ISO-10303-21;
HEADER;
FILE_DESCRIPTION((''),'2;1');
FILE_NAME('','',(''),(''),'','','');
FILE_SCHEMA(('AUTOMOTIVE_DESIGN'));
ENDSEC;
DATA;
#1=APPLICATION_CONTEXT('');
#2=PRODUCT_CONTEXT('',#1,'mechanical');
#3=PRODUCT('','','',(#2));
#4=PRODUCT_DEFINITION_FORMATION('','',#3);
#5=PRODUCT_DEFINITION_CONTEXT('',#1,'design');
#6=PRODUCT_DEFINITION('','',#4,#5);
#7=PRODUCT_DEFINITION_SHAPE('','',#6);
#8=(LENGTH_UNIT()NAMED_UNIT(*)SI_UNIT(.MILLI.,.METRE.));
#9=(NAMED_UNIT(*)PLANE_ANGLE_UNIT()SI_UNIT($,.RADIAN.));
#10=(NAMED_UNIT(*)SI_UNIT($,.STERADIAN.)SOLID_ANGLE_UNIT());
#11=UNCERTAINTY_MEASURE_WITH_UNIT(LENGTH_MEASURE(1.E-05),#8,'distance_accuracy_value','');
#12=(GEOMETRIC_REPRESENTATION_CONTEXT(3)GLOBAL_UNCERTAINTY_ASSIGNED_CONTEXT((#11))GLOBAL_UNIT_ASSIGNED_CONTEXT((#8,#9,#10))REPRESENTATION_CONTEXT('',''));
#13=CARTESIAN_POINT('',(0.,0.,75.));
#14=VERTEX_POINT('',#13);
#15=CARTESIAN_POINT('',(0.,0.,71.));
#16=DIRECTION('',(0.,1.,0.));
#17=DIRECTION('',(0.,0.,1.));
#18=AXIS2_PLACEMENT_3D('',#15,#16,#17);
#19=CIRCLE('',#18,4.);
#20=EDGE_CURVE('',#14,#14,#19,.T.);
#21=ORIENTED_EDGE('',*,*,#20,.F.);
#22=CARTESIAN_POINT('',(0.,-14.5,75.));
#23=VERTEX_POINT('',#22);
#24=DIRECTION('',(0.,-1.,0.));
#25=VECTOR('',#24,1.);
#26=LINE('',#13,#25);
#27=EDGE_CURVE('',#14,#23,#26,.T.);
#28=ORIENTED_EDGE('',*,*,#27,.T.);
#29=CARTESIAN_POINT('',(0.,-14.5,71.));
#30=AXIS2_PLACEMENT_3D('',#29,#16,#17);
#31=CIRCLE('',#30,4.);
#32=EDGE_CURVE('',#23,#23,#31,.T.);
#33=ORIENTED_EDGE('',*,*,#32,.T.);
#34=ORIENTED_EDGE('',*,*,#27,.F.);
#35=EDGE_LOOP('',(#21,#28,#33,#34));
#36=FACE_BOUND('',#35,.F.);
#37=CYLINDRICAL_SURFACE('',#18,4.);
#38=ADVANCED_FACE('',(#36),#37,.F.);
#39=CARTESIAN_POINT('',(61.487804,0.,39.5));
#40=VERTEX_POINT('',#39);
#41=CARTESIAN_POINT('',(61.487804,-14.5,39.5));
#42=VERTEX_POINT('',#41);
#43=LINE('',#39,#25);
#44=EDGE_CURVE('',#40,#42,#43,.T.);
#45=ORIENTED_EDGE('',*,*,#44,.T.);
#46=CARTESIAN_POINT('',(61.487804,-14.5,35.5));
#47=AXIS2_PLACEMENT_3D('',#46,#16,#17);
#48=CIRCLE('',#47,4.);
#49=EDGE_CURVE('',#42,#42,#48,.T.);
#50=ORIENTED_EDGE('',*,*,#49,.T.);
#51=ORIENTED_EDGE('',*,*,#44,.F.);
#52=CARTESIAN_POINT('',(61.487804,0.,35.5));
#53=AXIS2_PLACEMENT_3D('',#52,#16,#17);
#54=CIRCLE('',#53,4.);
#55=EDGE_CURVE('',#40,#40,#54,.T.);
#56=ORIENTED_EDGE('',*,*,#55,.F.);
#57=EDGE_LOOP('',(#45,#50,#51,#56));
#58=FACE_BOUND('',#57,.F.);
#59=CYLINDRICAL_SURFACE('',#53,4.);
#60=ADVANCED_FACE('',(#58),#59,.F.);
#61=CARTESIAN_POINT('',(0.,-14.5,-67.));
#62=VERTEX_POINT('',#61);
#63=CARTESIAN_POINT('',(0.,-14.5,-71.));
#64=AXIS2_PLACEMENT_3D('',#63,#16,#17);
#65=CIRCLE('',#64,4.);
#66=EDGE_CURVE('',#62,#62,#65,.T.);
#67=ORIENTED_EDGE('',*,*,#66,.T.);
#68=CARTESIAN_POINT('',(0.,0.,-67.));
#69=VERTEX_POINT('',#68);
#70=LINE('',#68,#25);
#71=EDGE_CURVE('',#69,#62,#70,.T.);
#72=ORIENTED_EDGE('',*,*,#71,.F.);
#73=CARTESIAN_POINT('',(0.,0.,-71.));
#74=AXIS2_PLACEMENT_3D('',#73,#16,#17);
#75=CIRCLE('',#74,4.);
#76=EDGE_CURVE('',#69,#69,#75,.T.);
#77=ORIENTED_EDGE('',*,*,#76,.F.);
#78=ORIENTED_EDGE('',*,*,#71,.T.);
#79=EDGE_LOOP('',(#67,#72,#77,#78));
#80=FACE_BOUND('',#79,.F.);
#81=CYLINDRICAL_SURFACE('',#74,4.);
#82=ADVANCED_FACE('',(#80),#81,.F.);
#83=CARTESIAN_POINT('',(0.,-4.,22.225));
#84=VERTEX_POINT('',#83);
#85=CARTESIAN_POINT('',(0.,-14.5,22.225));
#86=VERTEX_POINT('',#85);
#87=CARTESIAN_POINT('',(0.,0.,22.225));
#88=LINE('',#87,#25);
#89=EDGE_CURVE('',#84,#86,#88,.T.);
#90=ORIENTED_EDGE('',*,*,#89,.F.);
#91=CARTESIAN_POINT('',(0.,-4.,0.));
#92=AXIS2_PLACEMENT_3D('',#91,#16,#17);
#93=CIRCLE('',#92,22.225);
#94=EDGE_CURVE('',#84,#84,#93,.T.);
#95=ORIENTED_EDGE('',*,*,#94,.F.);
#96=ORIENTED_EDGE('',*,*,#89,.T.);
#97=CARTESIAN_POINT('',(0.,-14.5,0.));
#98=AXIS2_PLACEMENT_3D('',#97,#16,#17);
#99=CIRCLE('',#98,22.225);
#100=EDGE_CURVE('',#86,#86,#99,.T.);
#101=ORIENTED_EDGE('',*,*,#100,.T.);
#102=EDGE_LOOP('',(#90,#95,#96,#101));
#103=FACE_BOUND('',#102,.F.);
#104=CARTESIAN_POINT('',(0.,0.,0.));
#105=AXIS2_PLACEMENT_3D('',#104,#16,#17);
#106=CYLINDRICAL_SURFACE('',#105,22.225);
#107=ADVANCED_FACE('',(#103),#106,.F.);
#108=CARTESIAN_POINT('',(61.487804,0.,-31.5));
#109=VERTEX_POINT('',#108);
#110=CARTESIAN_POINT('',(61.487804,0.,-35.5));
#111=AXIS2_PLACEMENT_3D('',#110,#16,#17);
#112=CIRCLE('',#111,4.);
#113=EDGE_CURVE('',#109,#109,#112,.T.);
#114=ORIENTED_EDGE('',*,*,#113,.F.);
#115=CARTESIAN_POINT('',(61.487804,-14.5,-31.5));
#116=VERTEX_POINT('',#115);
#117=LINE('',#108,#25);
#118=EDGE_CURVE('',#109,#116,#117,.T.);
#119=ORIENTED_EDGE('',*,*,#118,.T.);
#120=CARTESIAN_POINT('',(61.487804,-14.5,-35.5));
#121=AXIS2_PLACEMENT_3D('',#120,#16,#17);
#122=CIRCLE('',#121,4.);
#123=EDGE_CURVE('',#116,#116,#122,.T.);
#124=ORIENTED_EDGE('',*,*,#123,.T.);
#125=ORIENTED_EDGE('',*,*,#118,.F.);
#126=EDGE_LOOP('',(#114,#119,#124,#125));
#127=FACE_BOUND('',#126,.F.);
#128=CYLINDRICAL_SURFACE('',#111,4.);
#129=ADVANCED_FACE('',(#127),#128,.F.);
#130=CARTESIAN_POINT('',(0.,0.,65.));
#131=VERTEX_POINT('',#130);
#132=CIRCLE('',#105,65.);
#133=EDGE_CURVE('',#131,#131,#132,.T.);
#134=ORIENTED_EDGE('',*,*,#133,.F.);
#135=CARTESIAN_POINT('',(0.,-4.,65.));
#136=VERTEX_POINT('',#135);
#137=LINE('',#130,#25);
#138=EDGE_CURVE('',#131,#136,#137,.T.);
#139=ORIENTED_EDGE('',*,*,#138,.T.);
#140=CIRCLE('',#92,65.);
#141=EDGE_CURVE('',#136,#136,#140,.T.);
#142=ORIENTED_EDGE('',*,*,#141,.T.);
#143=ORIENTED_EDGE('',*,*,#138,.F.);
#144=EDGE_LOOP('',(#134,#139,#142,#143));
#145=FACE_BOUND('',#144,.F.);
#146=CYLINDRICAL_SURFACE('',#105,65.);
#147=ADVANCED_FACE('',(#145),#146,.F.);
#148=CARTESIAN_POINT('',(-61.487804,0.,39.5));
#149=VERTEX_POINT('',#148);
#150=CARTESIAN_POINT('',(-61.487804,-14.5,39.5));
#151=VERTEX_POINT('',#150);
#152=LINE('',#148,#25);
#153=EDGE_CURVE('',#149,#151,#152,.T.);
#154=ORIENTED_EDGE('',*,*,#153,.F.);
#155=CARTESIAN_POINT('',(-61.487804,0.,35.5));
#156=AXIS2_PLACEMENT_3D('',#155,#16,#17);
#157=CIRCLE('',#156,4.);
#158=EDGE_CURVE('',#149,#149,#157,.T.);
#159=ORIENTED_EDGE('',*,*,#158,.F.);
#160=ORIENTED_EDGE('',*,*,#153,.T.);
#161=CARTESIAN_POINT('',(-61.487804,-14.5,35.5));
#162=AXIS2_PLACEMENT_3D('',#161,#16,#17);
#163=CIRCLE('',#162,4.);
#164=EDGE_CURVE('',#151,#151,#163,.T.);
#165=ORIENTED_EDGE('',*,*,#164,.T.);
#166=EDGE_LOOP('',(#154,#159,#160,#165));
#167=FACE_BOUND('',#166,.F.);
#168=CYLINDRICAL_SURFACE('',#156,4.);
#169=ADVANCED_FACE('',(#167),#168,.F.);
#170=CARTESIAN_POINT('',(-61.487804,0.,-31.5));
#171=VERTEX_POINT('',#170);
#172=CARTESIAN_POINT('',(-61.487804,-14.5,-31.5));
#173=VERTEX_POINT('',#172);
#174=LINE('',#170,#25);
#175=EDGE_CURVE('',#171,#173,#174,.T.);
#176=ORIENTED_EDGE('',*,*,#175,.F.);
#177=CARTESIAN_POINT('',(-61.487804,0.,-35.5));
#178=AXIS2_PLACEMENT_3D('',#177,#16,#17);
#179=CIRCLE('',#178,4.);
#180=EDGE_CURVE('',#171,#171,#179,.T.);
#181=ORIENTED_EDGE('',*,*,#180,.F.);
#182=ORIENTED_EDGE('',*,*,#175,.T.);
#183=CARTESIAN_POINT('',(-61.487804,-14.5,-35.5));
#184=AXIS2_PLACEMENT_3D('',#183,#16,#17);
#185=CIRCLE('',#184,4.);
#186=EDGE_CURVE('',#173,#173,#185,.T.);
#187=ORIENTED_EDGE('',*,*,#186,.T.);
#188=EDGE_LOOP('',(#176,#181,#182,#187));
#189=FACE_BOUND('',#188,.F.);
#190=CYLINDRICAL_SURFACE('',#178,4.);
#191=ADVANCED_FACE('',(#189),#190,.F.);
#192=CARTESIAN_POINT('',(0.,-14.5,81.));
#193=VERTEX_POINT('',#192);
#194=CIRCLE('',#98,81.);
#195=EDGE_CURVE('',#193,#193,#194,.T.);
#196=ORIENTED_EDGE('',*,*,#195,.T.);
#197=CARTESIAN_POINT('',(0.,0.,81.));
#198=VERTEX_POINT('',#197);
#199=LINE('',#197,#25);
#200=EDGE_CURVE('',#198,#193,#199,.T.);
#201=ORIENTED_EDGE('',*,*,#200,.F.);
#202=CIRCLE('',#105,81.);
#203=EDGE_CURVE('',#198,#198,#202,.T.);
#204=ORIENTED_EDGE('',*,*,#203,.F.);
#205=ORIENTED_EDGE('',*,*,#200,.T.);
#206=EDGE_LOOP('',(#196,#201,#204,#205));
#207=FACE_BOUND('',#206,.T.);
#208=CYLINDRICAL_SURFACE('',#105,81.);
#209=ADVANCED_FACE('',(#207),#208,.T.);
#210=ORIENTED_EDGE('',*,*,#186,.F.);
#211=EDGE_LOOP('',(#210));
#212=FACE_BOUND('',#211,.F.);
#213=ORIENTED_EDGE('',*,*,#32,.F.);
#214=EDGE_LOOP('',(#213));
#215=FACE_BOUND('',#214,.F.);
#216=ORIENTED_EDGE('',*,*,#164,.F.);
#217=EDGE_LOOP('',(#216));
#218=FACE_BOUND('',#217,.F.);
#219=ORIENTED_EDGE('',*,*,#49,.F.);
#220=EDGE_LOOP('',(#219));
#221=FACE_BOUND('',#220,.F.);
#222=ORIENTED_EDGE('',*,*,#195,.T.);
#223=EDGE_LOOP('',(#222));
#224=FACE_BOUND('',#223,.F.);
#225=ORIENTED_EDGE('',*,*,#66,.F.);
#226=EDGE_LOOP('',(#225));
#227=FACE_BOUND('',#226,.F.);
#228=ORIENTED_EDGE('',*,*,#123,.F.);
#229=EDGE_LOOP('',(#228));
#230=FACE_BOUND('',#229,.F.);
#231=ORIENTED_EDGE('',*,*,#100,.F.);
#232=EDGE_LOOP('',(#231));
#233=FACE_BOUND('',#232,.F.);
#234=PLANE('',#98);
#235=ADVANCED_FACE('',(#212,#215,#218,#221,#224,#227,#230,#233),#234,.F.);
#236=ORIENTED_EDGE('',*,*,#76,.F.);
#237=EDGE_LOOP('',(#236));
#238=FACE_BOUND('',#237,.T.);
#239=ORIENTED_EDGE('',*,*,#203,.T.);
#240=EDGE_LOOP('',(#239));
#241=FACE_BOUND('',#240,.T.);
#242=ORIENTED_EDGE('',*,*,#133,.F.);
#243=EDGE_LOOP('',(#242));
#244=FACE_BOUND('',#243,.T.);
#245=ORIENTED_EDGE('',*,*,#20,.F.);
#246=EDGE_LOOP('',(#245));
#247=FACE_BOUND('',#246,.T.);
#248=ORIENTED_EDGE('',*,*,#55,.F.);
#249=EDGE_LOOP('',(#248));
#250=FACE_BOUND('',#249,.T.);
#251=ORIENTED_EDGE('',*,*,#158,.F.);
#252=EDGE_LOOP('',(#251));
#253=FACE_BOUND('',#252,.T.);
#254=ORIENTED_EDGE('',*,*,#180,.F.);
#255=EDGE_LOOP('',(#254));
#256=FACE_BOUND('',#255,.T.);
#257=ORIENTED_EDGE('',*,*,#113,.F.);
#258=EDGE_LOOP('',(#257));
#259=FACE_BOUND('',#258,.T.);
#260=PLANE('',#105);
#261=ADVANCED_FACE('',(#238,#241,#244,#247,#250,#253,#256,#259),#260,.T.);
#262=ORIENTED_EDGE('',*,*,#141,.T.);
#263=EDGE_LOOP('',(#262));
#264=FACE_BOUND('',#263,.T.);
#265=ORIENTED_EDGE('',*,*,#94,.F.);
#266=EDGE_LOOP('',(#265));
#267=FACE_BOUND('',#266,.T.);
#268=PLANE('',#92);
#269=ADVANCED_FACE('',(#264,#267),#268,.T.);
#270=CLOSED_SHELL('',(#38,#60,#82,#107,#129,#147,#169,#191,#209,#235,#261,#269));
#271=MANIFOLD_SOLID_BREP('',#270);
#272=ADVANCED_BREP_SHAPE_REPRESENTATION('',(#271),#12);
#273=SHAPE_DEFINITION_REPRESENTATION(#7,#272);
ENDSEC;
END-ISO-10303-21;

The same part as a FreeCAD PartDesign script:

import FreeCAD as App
import Part
import Sketcher

doc = App.newDocument("Part")
params = doc.addObject("Spreadsheet::Sheet", "Params")
for row, (alias, value) in enumerate([
    ("sketch1_diameter", "162 mm"),
    ("sketch1_diameter2", "8 mm"),
    ("sketch1_diameter3", "44.45 mm"),
    ("pad1_length", "14.5 mm"),
    ("sketch2_diameter", "130 mm"),
    ("pocket1_length", "4 mm"),
], start=1):
    params.set(f"A{row}", alias)
    params.set(f"B{row}", "=" + value)
    params.setAlias(f"B{row}", alias)

body = doc.addObject("PartDesign::Body", "Body")

sketch1 = body.newObject("Sketcher::SketchObject", "Sketch")
sketch1.AttachmentSupport = (doc.getObject("XZ_Plane"), [""])
sketch1.MapMode = "FlatFace"
sketch1.addGeometry([
    Part.Circle(App.Vector(0, 0, 0), App.Vector(0, 0, 1), 81),
    Part.Circle(App.Vector(-61.5, -35.5, 0), App.Vector(0, 0, 1), 4),
    Part.Circle(App.Vector(0, -71, 0), App.Vector(0, 0, 1), 4),
    Part.Circle(App.Vector(-61.5, 35.5, 0), App.Vector(0, 0, 1), 4),
    Part.Circle(App.Vector(61.5, -35.5, 0), App.Vector(0, 0, 1), 4),
    Part.Circle(App.Vector(0, 0, 0), App.Vector(0, 0, 1), 22.2),
    Part.Circle(App.Vector(0, 71, 0), App.Vector(0, 0, 1), 4),
    Part.Circle(App.Vector(61.5, 35.5, 0), App.Vector(0, 0, 1), 4),
], False)
sketch1.addConstraint([
    Sketcher.Constraint("Coincident", 0, 3, -1, 1),
    Sketcher.Constraint("Coincident", 5, 3, -1, 1),
    Sketcher.Constraint("Equal", 1, 2),
    Sketcher.Constraint("Equal", 2, 3),
    Sketcher.Constraint("Equal", 3, 4),
    Sketcher.Constraint("Equal", 4, 6),
    Sketcher.Constraint("Equal", 6, 7),
    Sketcher.Constraint("Symmetric", 3, 3, 4, 3, -1, 1),
    Sketcher.Constraint("Symmetric", 2, 3, 6, 3, -1, 1),
    Sketcher.Constraint("Symmetric", 1, 3, 7, 3, -1, 1),
    Sketcher.Constraint("Symmetric", 1, 3, 4, 3, -2),
    Sketcher.Constraint("PointOnObject", 2, 3, -2),
    Sketcher.Constraint("Diameter", 0, 162.0),
    Sketcher.Constraint("Diameter", 1, 8.0),
    Sketcher.Constraint("Diameter", 5, 44.45),
    Sketcher.Constraint("DistanceY", 2, 3, -1, 1, 71.0),
    Sketcher.Constraint("DistanceY", 1, 3, 3, 3, 71.0),
    Sketcher.Constraint("DistanceX", 1, 3, -1, 1, 61.487804),
])
sketch1.setExpression("Constraints[12]", "Params.sketch1_diameter")
sketch1.setExpression("Constraints[13]", "Params.sketch1_diameter2")
sketch1.setExpression("Constraints[14]", "Params.sketch1_diameter3")
pad1 = body.newObject("PartDesign::Pad", "Pad")
pad1.Profile = sketch1
pad1.setExpression("Length", "Params.pad1_length")

sketch2 = body.newObject("Sketcher::SketchObject", "Sketch001")
sketch2.AttachmentSupport = (doc.getObject("XZ_Plane"), [""])
sketch2.MapMode = "FlatFace"
sketch2.addGeometry(Part.Circle(App.Vector(0, 0, 0), App.Vector(0, 0, 1), 65), False)
sketch2.addConstraint([
    Sketcher.Constraint("Coincident", 0, 3, -1, 1),
    Sketcher.Constraint("Diameter", 0, 130.0),
])
sketch2.setExpression("Constraints[1]", "Params.sketch2_diameter")
pocket1 = body.newObject("PartDesign::Pocket", "Pocket")
pocket1.Profile = sketch2
pocket1.setExpression("Length", "Params.pocket1_length")
pocket1.Reversed = True

doc.recompute()
